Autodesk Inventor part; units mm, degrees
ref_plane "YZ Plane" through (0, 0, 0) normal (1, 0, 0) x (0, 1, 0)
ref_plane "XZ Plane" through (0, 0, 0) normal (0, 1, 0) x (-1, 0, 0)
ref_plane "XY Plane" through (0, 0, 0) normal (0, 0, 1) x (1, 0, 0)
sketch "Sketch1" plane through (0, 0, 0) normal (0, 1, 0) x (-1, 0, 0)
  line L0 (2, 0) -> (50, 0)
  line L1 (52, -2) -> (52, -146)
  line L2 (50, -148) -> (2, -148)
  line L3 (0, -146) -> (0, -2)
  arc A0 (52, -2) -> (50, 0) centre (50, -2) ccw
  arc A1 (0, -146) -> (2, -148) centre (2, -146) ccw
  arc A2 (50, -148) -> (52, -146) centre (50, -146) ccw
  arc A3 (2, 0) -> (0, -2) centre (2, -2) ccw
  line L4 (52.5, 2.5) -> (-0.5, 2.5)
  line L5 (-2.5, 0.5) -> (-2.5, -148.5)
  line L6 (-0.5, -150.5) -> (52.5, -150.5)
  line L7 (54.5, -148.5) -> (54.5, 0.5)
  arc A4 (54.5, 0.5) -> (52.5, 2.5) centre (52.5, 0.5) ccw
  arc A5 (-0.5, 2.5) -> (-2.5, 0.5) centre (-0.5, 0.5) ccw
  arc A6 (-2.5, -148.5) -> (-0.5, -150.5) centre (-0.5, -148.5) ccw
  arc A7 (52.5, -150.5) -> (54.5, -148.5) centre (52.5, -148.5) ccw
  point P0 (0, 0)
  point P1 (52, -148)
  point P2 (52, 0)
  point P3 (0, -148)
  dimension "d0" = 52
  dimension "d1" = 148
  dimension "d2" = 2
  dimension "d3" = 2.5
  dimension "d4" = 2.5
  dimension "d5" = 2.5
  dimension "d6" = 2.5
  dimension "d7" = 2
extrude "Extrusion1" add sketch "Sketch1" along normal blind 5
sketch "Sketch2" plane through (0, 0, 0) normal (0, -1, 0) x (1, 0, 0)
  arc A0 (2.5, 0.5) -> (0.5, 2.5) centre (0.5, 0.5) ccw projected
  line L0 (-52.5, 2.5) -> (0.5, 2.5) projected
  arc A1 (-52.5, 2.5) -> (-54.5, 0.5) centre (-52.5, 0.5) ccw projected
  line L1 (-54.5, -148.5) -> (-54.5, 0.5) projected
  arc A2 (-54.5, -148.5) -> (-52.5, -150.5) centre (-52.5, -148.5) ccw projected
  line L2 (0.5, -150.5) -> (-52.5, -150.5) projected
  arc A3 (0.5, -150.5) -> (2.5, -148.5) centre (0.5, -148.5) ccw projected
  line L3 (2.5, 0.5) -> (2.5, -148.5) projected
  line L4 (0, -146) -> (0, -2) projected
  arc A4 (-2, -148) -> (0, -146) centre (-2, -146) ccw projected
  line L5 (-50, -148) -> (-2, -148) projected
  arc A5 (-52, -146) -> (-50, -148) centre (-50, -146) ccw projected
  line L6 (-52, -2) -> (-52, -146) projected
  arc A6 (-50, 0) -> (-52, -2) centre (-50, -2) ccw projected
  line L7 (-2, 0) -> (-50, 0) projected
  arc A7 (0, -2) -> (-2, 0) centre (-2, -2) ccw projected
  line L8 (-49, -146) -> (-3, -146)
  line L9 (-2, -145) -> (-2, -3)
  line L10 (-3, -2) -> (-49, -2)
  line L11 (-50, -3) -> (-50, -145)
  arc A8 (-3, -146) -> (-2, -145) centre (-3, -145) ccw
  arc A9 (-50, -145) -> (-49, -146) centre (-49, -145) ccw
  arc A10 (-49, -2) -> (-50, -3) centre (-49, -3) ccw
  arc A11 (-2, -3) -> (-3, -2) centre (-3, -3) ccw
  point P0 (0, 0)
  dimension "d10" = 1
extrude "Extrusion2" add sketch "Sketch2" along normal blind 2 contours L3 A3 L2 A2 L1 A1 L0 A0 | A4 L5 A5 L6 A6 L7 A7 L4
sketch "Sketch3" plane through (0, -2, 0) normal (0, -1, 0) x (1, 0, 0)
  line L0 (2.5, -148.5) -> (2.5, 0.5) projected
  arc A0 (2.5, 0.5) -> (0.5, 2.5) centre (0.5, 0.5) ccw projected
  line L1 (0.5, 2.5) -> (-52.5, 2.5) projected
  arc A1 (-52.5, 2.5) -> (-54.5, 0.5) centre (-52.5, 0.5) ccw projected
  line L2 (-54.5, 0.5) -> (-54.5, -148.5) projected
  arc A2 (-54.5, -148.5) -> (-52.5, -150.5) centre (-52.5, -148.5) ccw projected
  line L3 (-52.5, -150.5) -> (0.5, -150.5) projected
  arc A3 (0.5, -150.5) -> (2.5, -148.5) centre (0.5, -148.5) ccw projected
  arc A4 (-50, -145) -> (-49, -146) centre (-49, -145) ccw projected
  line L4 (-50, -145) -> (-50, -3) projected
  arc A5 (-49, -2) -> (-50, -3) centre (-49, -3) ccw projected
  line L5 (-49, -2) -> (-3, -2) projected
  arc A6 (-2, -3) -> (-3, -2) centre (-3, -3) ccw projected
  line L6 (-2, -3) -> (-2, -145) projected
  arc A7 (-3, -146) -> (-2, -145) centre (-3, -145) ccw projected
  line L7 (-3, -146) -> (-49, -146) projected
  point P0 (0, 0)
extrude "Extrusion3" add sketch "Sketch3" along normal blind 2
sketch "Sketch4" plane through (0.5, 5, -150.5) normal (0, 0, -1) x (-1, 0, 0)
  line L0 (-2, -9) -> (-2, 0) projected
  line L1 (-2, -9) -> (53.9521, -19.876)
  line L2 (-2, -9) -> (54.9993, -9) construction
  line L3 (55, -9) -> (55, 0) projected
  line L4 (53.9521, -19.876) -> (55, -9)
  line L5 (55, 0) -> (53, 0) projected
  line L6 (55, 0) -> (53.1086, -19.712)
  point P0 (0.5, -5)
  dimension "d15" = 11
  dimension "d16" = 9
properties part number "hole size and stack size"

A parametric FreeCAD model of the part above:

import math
import FreeCAD as App
import Part
import Sketcher

doc = App.newDocument("Part")
body = doc.addObject("PartDesign::Body", "Body")

sketch1 = body.newObject("Sketcher::SketchObject", "Sketch")
sketch1.AttachmentSupport = (doc.getObject("XZ_Plane"), [""])
sketch1.MapMode = "FlatFace"
sketch1.addGeometry(Part.ArcOfCircle(Part.Circle(App.Vector(-52.5, 0.5, 0), App.Vector(0, 0, 1), 2), math.radians(90), math.radians(180)), False)
sketch1.addGeometry(Part.LineSegment(App.Vector(-52.5, 2.5, 0), App.Vector(0.5, 2.5, 0)), False)
sketch1.addGeometry(Part.ArcOfCircle(Part.Circle(App.Vector(0.5, 0.5, 0), App.Vector(0, 0, 1), 2), math.radians(0), math.radians(90)), False)
sketch1.addGeometry(Part.LineSegment(App.Vector(2.5, 0.5, 0), App.Vector(2.5, -148.5, 0)), False)
sketch1.addGeometry(Part.ArcOfCircle(Part.Circle(App.Vector(0.5, -148.5, 0), App.Vector(0, 0, 1), 2), math.radians(-90), math.radians(0)), False)
sketch1.addGeometry(Part.LineSegment(App.Vector(0.5, -150.5, 0), App.Vector(-52.5, -150.5, 0)), False)
sketch1.addGeometry(Part.ArcOfCircle(Part.Circle(App.Vector(-52.5, -148.5, 0), App.Vector(0, 0, 1), 2), math.radians(180), math.radians(270)), False)
sketch1.addGeometry(Part.LineSegment(App.Vector(-54.5, -148.5, 0), App.Vector(-54.5, 0.5, 0)), False)
sketch1.addGeometry(Part.ArcOfCircle(Part.Circle(App.Vector(-2, -2, 0), App.Vector(0, 0, 1), 2), math.radians(0), math.radians(90)), False)
sketch1.addGeometry(Part.LineSegment(App.Vector(-2, 0, 0), App.Vector(-50, 0, 0)), False)
sketch1.addGeometry(Part.ArcOfCircle(Part.Circle(App.Vector(-50, -2, 0), App.Vector(0, 0, 1), 2), math.radians(90), math.radians(180)), False)
sketch1.addGeometry(Part.LineSegment(App.Vector(-52, -2, 0), App.Vector(-52, -146, 0)), False)
sketch1.addGeometry(Part.ArcOfCircle(Part.Circle(App.Vector(-50, -146, 0), App.Vector(0, 0, 1), 2), math.radians(180), math.radians(270)), False)
sketch1.addGeometry(Part.LineSegment(App.Vector(-50, -148, 0), App.Vector(-2, -148, 0)), False)
sketch1.addGeometry(Part.ArcOfCircle(Part.Circle(App.Vector(-2, -146, 0), App.Vector(0, 0, 1), 2), math.radians(-90), math.radians(0)), False)
sketch1.addGeometry(Part.LineSegment(App.Vector(0, -146, 0), App.Vector(0, -2, 0)), False)
sketch1.addConstraint(Sketcher.Constraint("Tangent", 0, 1, 1, 1))
sketch1.addConstraint(Sketcher.Constraint("Tangent", 1, 2, 2, 2))
sketch1.addConstraint(Sketcher.Constraint("Tangent", 2, 1, 3, 1))
sketch1.addConstraint(Sketcher.Constraint("Tangent", 3, 2, 4, 2))
sketch1.addConstraint(Sketcher.Constraint("Tangent", 4, 1, 5, 1))
sketch1.addConstraint(Sketcher.Constraint("Tangent", 5, 2, 6, 2))
sketch1.addConstraint(Sketcher.Constraint("Tangent", 6, 1, 7, 1))
sketch1.addConstraint(Sketcher.Constraint("Tangent", 7, 2, 0, 2))
sketch1.addConstraint(Sketcher.Constraint("Tangent", 8, 2, 9, 1))
sketch1.addConstraint(Sketcher.Constraint("Tangent", 9, 2, 10, 1))
sketch1.addConstraint(Sketcher.Constraint("Tangent", 10, 2, 11, 1))
sketch1.addConstraint(Sketcher.Constraint("Tangent", 11, 2, 12, 1))
sketch1.addConstraint(Sketcher.Constraint("Tangent", 12, 2, 13, 1))
sketch1.addConstraint(Sketcher.Constraint("Tangent", 13, 2, 14, 1))
sketch1.addConstraint(Sketcher.Constraint("Tangent", 14, 2, 15, 1))
sketch1.addConstraint(Sketcher.Constraint("Tangent", 15, 2, 8, 1))
sketch1.addConstraint(Sketcher.Constraint("Horizontal", 1))
sketch1.addConstraint(Sketcher.Constraint("Vertical", 3))
sketch1.addConstraint(Sketcher.Constraint("Horizontal", 5))
sketch1.addConstraint(Sketcher.Constraint("Vertical", 7))
sketch1.addConstraint(Sketcher.Constraint("Horizontal", 9))
sketch1.addConstraint(Sketcher.Constraint("Vertical", 11))
sketch1.addConstraint(Sketcher.Constraint("Horizontal", 13))
sketch1.addConstraint(Sketcher.Constraint("Vertical", 15))
sketch1.addConstraint(Sketcher.Constraint("Equal", 0, 2))
sketch1.addConstraint(Sketcher.Constraint("Equal", 2, 4))
sketch1.addConstraint(Sketcher.Constraint("Equal", 4, 6))
sketch1.addConstraint(Sketcher.Constraint("Equal", 6, 8))
sketch1.addConstraint(Sketcher.Constraint("Equal", 8, 10))
sketch1.addConstraint(Sketcher.Constraint("Equal", 10, 12))
sketch1.addConstraint(Sketcher.Constraint("Equal", 12, 14))
sketch1.addConstraint(Sketcher.Constraint("PointOnObject", 8, 2, -1))
sketch1.addConstraint(Sketcher.Constraint("PointOnObject", 14, 2, -2))
sketch1.addConstraint(Sketcher.Constraint("Radius", 0, 2.0))
sketch1.addConstraint(Sketcher.Constraint("DistanceX", 10, 2, -1, 1, 52.0))
sketch1.addConstraint(Sketcher.Constraint("DistanceY", 12, 2, -1, 1, 148.0))
sketch1.addConstraint(Sketcher.Constraint("DistanceY", -1, 1, 0, 1, 2.5))
sketch1.addConstraint(Sketcher.Constraint("DistanceX", -1, 1, 2, 1, 2.5))
sketch1.addConstraint(Sketcher.Constraint("DistanceX", 0, 3, 10, 3, 2.5))
sketch1.addConstraint(Sketcher.Constraint("DistanceY", 6, 3, 12, 3, 2.5))
pad1 = body.newObject("PartDesign::Pad", "Pad")
pad1.Profile = sketch1
pad1.Length = 5
pad1.Reversed = True

sketch2 = body.newObject("Sketcher::SketchObject", "Sketch001")
sketch2.AttachmentSupport = (doc.getObject("XZ_Plane"), [""])
sketch2.MapMode = "FlatFace"
sketch2.addGeometry(Part.LineSegment(App.Vector(2.5, -148.5, 0), App.Vector(2.5, 0.5, 0)), False)
sketch2.addGeometry(Part.ArcOfCircle(Part.Circle(App.Vector(0.5, 0.5, 0), App.Vector(0, 0, 1), 2), math.radians(0), math.radians(90)), False)
sketch2.addGeometry(Part.LineSegment(App.Vector(0.5, 2.5, 0), App.Vector(-52.5, 2.5, 0)), False)
sketch2.addGeometry(Part.ArcOfCircle(Part.Circle(App.Vector(-52.5, 0.5, 0), App.Vector(0, 0, 1), 2), math.radians(90), math.radians(180)), False)
sketch2.addGeometry(Part.LineSegment(App.Vector(-54.5, 0.5, 0), App.Vector(-54.5, -148.5, 0)), False)
sketch2.addGeometry(Part.ArcOfCircle(Part.Circle(App.Vector(-52.5, -148.5, 0), App.Vector(0, 0, 1), 2), math.radians(180), math.radians(270)), False)
sketch2.addGeometry(Part.LineSegment(App.Vector(-52.5, -150.5, 0), App.Vector(0.5, -150.5, 0)), False)
sketch2.addGeometry(Part.ArcOfCircle(Part.Circle(App.Vector(0.5, -148.5, 0), App.Vector(0, 0, 1), 2), math.radians(-90), math.radians(0)), False)
sketch2.addGeometry(Part.LineSegment(App.Vector(-3, -146, 0), App.Vector(-49, -146, 0)), False)
sketch2.addGeometry(Part.ArcOfCircle(Part.Circle(App.Vector(-49, -145, 0), App.Vector(0, 0, 1), 1), math.radians(180), math.radians(270)), False)
sketch2.addGeometry(Part.LineSegment(App.Vector(-50, -145, 0), App.Vector(-50, -3, 0)), False)
sketch2.addGeometry(Part.ArcOfCircle(Part.Circle(App.Vector(-49, -3, 0), App.Vector(0, 0, 1), 1), math.radians(90), math.radians(180)), False)
sketch2.addGeometry(Part.LineSegment(App.Vector(-49, -2, 0), App.Vector(-3, -2, 0)), False)
sketch2.addGeometry(Part.ArcOfCircle(Part.Circle(App.Vector(-3, -3, 0), App.Vector(0, 0, 1), 1), math.radians(0), math.radians(90)), False)
sketch2.addGeometry(Part.LineSegment(App.Vector(-2, -3, 0), App.Vector(-2, -145, 0)), False)
sketch2.addGeometry(Part.ArcOfCircle(Part.Circle(App.Vector(-3, -145, 0), App.Vector(0, 0, 1), 1), math.radians(-90), math.radians(0)), False)
sketch2.addConstraint(Sketcher.Constraint("Tangent", 0, 2, 1, 1))
sketch2.addConstraint(Sketcher.Constraint("Tangent", 1, 2, 2, 1))
sketch2.addConstraint(Sketcher.Constraint("Tangent", 2, 2, 3, 1))
sketch2.addConstraint(Sketcher.Constraint("Tangent", 3, 2, 4, 1))
sketch2.addConstraint(Sketcher.Constraint("Tangent", 4, 2, 5, 1))
sketch2.addConstraint(Sketcher.Constraint("Tangent", 5, 2, 6, 1))
sketch2.addConstraint(Sketcher.Constraint("Tangent", 6, 2, 7, 1))
sketch2.addConstraint(Sketcher.Constraint("Tangent", 7, 2, 0, 1))
sketch2.addConstraint(Sketcher.Constraint("Tangent", 8, 2, 9, 2))
sketch2.addConstraint(Sketcher.Constraint("Tangent", 9, 1, 10, 1))
sketch2.addConstraint(Sketcher.Constraint("Tangent", 10, 2, 11, 2))
sketch2.addConstraint(Sketcher.Constraint("Tangent", 11, 1, 12, 1))
sketch2.addConstraint(Sketcher.Constraint("Tangent", 12, 2, 13, 2))
sketch2.addConstraint(Sketcher.Constraint("Tangent", 13, 1, 14, 1))
sketch2.addConstraint(Sketcher.Constraint("Tangent", 14, 2, 15, 2))
sketch2.addConstraint(Sketcher.Constraint("Tangent", 15, 1, 8, 1))
sketch2.addConstraint(Sketcher.Constraint("Vertical", 0))
sketch2.addConstraint(Sketcher.Constraint("Horizontal", 2))
sketch2.addConstraint(Sketcher.Constraint("Vertical", 4))
sketch2.addConstraint(Sketcher.Constraint("Horizontal", 6))
sketch2.addConstraint(Sketcher.Constraint("Horizontal", 8))
sketch2.addConstraint(Sketcher.Constraint("Vertical", 10))
sketch2.addConstraint(Sketcher.Constraint("Horizontal", 12))
sketch2.addConstraint(Sketcher.Constraint("Vertical", 14))
sketch2.addConstraint(Sketcher.Constraint("Equal", 1, 3))
sketch2.addConstraint(Sketcher.Constraint("Equal", 3, 5))
sketch2.addConstraint(Sketcher.Constraint("Equal", 5, 7))
sketch2.addConstraint(Sketcher.Constraint("Equal", 9, 11))
sketch2.addConstraint(Sketcher.Constraint("Equal", 11, 13))
sketch2.addConstraint(Sketcher.Constraint("Equal", 13, 15))
sketch2.addConstraint(Sketcher.Constraint("Radius", 9, 1.0))
sketch2.addConstraint(Sketcher.Constraint("Radius", 1, 2.0))
sketch2.addConstraint(Sketcher.Constraint("DistanceX", 2, 2, 2, 1, 53.0))
sketch2.addConstraint(Sketcher.Constraint("DistanceX", 8, 2, 8, 1, 46.0))
sketch2.addConstraint(Sketcher.Constraint("DistanceY", 0, 1, 0, 2, 149.0))
sketch2.addConstraint(Sketcher.Constraint("DistanceY", 10, 1, 10, 2, 142.0))
sketch2.addConstraint(Sketcher.Constraint("DistanceX", 9, 3, -1, 1, 49.0))
sketch2.addConstraint(Sketcher.Constraint("DistanceY", 9, 3, -1, 1, 145.0))
sketch2.addConstraint(Sketcher.Constraint("DistanceX", -1, 1, 1, 3, 0.5))
sketch2.addConstraint(Sketcher.Constraint("DistanceY", -1, 1, 1, 3, 0.5))
pad2 = body.newObject("PartDesign::Pad", "Pad001")
pad2.Profile = sketch2
pad2.Length = 2

sketch3 = body.newObject("Sketcher::SketchObject", "Sketch002")
sketch3.AttachmentSupport = (doc.getObject("XZ_Plane"), [""])
sketch3.MapMode = "FlatFace"
sketch3.AttachmentOffset = App.Placement(App.Vector(0, 0, 2), App.Rotation())
sketch3.addGeometry(Part.ArcOfCircle(Part.Circle(App.Vector(0.5, -148.5, 0), App.Vector(0, 0, 1), 2), math.radians(-90), math.radians(0)), False)
sketch3.addGeometry(Part.LineSegment(App.Vector(2.5, -148.5, 0), App.Vector(2.5, 0.5, 0)), False)
sketch3.addGeometry(Part.ArcOfCircle(Part.Circle(App.Vector(0.5, 0.5, 0), App.Vector(0, 0, 1), 2), math.radians(0), math.radians(90)), False)
sketch3.addGeometry(Part.LineSegment(App.Vector(0.5, 2.5, 0), App.Vector(-52.5, 2.5, 0)), False)
sketch3.addGeometry(Part.ArcOfCircle(Part.Circle(App.Vector(-52.5, 0.5, 0), App.Vector(0, 0, 1), 2), math.radians(90), math.radians(180)), False)
sketch3.addGeometry(Part.LineSegment(App.Vector(-54.5, 0.5, 0), App.Vector(-54.5, -148.5, 0)), False)
sketch3.addGeometry(Part.ArcOfCircle(Part.Circle(App.Vector(-52.5, -148.5, 0), App.Vector(0, 0, 1), 2), math.radians(180), math.radians(270)), False)
sketch3.addGeometry(Part.LineSegment(App.Vector(-52.5, -150.5, 0), App.Vector(0.5, -150.5, 0)), False)
sketch3.addGeometry(Part.ArcOfCircle(Part.Circle(App.Vector(-49, -145, 0), App.Vector(0, 0, 1), 1), math.radians(180), math.radians(270)), False)
sketch3.addGeometry(Part.LineSegment(App.Vector(-50, -145, 0), App.Vector(-50, -3, 0)), False)
sketch3.addGeometry(Part.ArcOfCircle(Part.Circle(App.Vector(-49, -3, 0), App.Vector(0, 0, 1), 1), math.radians(90), math.radians(180)), False)
sketch3.addGeometry(Part.LineSegment(App.Vector(-49, -2, 0), App.Vector(-3, -2, 0)), False)
sketch3.addGeometry(Part.ArcOfCircle(Part.Circle(App.Vector(-3, -3, 0), App.Vector(0, 0, 1), 1), math.radians(0), math.radians(90)), False)
sketch3.addGeometry(Part.LineSegment(App.Vector(-2, -3, 0), App.Vector(-2, -145, 0)), False)
sketch3.addGeometry(Part.ArcOfCircle(Part.Circle(App.Vector(-3, -145, 0), App.Vector(0, 0, 1), 1), math.radians(-90), math.radians(0)), False)
sketch3.addGeometry(Part.LineSegment(App.Vector(-3, -146, 0), App.Vector(-49, -146, 0)), False)
sketch3.addConstraint(Sketcher.Constraint("Tangent", 0, 2, 1, 1))
sketch3.addConstraint(Sketcher.Constraint("Tangent", 1, 2, 2, 1))
sketch3.addConstraint(Sketcher.Constraint("Tangent", 2, 2, 3, 1))
sketch3.addConstraint(Sketcher.Constraint("Tangent", 3, 2, 4, 1))
sketch3.addConstraint(Sketcher.Constraint("Tangent", 4, 2, 5, 1))
sketch3.addConstraint(Sketcher.Constraint("Tangent", 5, 2, 6, 1))
sketch3.addConstraint(Sketcher.Constraint("Tangent", 6, 2, 7, 1))
sketch3.addConstraint(Sketcher.Constraint("Tangent", 7, 2, 0, 1))
sketch3.addConstraint(Sketcher.Constraint("Tangent", 8, 1, 9, 1))
sketch3.addConstraint(Sketcher.Constraint("Tangent", 9, 2, 10, 2))
sketch3.addConstraint(Sketcher.Constraint("Tangent", 10, 1, 11, 1))
sketch3.addConstraint(Sketcher.Constraint("Tangent", 11, 2, 12, 2))
sketch3.addConstraint(Sketcher.Constraint("Tangent", 12, 1, 13, 1))
sketch3.addConstraint(Sketcher.Constraint("Tangent", 13, 2, 14, 2))
sketch3.addConstraint(Sketcher.Constraint("Tangent", 14, 1, 15, 1))
sketch3.addConstraint(Sketcher.Constraint("Tangent", 15, 2, 8, 2))
sketch3.addConstraint(Sketcher.Constraint("Vertical", 1))
sketch3.addConstraint(Sketcher.Constraint("Horizontal", 3))
sketch3.addConstraint(Sketcher.Constraint("Vertical", 5))
sketch3.addConstraint(Sketcher.Constraint("Horizontal", 7))
sketch3.addConstraint(Sketcher.Constraint("Vertical", 9))
sketch3.addConstraint(Sketcher.Constraint("Horizontal", 11))
sketch3.addConstraint(Sketcher.Constraint("Vertical", 13))
sketch3.addConstraint(Sketcher.Constraint("Horizontal", 15))
sketch3.addConstraint(Sketcher.Constraint("Equal", 0, 2))
sketch3.addConstraint(Sketcher.Constraint("Equal", 2, 4))
sketch3.addConstraint(Sketcher.Constraint("Equal", 4, 6))
sketch3.addConstraint(Sketcher.Constraint("Equal", 8, 10))
sketch3.addConstraint(Sketcher.Constraint("Equal", 10, 12))
sketch3.addConstraint(Sketcher.Constraint("Equal", 12, 14))
sketch3.addConstraint(Sketcher.Constraint("Radius", 0, 2.0))
sketch3.addConstraint(Sketcher.Constraint("Radius", 8, 1.0))
sketch3.addConstraint(Sketcher.Constraint("DistanceX", 3, 2, 3, 1, 53.0))
sketch3.addConstraint(Sketcher.Constraint("DistanceX", 11, 1, 11, 2, 46.0))
sketch3.addConstraint(Sketcher.Constraint("DistanceY", 1, 1, 1, 2, 149.0))
sketch3.addConstraint(Sketcher.Constraint("DistanceY", 9, 1, 9, 2, 142.0))
sketch3.addConstraint(Sketcher.Constraint("DistanceX", 8, 3, -1, 1, 49.0))
sketch3.addConstraint(Sketcher.Constraint("DistanceY", 8, 3, -1, 1, 145.0))
sketch3.addConstraint(Sketcher.Constraint("DistanceX", -1, 1, 0, 3, 0.5))
sketch3.addConstraint(Sketcher.Constraint("DistanceY", 0, 3, -1, 1, 148.5))
pad3 = body.newObject("PartDesign::Pad", "Pad002")
pad3.Profile = sketch3
pad3.Length = 2

doc.recompute()
